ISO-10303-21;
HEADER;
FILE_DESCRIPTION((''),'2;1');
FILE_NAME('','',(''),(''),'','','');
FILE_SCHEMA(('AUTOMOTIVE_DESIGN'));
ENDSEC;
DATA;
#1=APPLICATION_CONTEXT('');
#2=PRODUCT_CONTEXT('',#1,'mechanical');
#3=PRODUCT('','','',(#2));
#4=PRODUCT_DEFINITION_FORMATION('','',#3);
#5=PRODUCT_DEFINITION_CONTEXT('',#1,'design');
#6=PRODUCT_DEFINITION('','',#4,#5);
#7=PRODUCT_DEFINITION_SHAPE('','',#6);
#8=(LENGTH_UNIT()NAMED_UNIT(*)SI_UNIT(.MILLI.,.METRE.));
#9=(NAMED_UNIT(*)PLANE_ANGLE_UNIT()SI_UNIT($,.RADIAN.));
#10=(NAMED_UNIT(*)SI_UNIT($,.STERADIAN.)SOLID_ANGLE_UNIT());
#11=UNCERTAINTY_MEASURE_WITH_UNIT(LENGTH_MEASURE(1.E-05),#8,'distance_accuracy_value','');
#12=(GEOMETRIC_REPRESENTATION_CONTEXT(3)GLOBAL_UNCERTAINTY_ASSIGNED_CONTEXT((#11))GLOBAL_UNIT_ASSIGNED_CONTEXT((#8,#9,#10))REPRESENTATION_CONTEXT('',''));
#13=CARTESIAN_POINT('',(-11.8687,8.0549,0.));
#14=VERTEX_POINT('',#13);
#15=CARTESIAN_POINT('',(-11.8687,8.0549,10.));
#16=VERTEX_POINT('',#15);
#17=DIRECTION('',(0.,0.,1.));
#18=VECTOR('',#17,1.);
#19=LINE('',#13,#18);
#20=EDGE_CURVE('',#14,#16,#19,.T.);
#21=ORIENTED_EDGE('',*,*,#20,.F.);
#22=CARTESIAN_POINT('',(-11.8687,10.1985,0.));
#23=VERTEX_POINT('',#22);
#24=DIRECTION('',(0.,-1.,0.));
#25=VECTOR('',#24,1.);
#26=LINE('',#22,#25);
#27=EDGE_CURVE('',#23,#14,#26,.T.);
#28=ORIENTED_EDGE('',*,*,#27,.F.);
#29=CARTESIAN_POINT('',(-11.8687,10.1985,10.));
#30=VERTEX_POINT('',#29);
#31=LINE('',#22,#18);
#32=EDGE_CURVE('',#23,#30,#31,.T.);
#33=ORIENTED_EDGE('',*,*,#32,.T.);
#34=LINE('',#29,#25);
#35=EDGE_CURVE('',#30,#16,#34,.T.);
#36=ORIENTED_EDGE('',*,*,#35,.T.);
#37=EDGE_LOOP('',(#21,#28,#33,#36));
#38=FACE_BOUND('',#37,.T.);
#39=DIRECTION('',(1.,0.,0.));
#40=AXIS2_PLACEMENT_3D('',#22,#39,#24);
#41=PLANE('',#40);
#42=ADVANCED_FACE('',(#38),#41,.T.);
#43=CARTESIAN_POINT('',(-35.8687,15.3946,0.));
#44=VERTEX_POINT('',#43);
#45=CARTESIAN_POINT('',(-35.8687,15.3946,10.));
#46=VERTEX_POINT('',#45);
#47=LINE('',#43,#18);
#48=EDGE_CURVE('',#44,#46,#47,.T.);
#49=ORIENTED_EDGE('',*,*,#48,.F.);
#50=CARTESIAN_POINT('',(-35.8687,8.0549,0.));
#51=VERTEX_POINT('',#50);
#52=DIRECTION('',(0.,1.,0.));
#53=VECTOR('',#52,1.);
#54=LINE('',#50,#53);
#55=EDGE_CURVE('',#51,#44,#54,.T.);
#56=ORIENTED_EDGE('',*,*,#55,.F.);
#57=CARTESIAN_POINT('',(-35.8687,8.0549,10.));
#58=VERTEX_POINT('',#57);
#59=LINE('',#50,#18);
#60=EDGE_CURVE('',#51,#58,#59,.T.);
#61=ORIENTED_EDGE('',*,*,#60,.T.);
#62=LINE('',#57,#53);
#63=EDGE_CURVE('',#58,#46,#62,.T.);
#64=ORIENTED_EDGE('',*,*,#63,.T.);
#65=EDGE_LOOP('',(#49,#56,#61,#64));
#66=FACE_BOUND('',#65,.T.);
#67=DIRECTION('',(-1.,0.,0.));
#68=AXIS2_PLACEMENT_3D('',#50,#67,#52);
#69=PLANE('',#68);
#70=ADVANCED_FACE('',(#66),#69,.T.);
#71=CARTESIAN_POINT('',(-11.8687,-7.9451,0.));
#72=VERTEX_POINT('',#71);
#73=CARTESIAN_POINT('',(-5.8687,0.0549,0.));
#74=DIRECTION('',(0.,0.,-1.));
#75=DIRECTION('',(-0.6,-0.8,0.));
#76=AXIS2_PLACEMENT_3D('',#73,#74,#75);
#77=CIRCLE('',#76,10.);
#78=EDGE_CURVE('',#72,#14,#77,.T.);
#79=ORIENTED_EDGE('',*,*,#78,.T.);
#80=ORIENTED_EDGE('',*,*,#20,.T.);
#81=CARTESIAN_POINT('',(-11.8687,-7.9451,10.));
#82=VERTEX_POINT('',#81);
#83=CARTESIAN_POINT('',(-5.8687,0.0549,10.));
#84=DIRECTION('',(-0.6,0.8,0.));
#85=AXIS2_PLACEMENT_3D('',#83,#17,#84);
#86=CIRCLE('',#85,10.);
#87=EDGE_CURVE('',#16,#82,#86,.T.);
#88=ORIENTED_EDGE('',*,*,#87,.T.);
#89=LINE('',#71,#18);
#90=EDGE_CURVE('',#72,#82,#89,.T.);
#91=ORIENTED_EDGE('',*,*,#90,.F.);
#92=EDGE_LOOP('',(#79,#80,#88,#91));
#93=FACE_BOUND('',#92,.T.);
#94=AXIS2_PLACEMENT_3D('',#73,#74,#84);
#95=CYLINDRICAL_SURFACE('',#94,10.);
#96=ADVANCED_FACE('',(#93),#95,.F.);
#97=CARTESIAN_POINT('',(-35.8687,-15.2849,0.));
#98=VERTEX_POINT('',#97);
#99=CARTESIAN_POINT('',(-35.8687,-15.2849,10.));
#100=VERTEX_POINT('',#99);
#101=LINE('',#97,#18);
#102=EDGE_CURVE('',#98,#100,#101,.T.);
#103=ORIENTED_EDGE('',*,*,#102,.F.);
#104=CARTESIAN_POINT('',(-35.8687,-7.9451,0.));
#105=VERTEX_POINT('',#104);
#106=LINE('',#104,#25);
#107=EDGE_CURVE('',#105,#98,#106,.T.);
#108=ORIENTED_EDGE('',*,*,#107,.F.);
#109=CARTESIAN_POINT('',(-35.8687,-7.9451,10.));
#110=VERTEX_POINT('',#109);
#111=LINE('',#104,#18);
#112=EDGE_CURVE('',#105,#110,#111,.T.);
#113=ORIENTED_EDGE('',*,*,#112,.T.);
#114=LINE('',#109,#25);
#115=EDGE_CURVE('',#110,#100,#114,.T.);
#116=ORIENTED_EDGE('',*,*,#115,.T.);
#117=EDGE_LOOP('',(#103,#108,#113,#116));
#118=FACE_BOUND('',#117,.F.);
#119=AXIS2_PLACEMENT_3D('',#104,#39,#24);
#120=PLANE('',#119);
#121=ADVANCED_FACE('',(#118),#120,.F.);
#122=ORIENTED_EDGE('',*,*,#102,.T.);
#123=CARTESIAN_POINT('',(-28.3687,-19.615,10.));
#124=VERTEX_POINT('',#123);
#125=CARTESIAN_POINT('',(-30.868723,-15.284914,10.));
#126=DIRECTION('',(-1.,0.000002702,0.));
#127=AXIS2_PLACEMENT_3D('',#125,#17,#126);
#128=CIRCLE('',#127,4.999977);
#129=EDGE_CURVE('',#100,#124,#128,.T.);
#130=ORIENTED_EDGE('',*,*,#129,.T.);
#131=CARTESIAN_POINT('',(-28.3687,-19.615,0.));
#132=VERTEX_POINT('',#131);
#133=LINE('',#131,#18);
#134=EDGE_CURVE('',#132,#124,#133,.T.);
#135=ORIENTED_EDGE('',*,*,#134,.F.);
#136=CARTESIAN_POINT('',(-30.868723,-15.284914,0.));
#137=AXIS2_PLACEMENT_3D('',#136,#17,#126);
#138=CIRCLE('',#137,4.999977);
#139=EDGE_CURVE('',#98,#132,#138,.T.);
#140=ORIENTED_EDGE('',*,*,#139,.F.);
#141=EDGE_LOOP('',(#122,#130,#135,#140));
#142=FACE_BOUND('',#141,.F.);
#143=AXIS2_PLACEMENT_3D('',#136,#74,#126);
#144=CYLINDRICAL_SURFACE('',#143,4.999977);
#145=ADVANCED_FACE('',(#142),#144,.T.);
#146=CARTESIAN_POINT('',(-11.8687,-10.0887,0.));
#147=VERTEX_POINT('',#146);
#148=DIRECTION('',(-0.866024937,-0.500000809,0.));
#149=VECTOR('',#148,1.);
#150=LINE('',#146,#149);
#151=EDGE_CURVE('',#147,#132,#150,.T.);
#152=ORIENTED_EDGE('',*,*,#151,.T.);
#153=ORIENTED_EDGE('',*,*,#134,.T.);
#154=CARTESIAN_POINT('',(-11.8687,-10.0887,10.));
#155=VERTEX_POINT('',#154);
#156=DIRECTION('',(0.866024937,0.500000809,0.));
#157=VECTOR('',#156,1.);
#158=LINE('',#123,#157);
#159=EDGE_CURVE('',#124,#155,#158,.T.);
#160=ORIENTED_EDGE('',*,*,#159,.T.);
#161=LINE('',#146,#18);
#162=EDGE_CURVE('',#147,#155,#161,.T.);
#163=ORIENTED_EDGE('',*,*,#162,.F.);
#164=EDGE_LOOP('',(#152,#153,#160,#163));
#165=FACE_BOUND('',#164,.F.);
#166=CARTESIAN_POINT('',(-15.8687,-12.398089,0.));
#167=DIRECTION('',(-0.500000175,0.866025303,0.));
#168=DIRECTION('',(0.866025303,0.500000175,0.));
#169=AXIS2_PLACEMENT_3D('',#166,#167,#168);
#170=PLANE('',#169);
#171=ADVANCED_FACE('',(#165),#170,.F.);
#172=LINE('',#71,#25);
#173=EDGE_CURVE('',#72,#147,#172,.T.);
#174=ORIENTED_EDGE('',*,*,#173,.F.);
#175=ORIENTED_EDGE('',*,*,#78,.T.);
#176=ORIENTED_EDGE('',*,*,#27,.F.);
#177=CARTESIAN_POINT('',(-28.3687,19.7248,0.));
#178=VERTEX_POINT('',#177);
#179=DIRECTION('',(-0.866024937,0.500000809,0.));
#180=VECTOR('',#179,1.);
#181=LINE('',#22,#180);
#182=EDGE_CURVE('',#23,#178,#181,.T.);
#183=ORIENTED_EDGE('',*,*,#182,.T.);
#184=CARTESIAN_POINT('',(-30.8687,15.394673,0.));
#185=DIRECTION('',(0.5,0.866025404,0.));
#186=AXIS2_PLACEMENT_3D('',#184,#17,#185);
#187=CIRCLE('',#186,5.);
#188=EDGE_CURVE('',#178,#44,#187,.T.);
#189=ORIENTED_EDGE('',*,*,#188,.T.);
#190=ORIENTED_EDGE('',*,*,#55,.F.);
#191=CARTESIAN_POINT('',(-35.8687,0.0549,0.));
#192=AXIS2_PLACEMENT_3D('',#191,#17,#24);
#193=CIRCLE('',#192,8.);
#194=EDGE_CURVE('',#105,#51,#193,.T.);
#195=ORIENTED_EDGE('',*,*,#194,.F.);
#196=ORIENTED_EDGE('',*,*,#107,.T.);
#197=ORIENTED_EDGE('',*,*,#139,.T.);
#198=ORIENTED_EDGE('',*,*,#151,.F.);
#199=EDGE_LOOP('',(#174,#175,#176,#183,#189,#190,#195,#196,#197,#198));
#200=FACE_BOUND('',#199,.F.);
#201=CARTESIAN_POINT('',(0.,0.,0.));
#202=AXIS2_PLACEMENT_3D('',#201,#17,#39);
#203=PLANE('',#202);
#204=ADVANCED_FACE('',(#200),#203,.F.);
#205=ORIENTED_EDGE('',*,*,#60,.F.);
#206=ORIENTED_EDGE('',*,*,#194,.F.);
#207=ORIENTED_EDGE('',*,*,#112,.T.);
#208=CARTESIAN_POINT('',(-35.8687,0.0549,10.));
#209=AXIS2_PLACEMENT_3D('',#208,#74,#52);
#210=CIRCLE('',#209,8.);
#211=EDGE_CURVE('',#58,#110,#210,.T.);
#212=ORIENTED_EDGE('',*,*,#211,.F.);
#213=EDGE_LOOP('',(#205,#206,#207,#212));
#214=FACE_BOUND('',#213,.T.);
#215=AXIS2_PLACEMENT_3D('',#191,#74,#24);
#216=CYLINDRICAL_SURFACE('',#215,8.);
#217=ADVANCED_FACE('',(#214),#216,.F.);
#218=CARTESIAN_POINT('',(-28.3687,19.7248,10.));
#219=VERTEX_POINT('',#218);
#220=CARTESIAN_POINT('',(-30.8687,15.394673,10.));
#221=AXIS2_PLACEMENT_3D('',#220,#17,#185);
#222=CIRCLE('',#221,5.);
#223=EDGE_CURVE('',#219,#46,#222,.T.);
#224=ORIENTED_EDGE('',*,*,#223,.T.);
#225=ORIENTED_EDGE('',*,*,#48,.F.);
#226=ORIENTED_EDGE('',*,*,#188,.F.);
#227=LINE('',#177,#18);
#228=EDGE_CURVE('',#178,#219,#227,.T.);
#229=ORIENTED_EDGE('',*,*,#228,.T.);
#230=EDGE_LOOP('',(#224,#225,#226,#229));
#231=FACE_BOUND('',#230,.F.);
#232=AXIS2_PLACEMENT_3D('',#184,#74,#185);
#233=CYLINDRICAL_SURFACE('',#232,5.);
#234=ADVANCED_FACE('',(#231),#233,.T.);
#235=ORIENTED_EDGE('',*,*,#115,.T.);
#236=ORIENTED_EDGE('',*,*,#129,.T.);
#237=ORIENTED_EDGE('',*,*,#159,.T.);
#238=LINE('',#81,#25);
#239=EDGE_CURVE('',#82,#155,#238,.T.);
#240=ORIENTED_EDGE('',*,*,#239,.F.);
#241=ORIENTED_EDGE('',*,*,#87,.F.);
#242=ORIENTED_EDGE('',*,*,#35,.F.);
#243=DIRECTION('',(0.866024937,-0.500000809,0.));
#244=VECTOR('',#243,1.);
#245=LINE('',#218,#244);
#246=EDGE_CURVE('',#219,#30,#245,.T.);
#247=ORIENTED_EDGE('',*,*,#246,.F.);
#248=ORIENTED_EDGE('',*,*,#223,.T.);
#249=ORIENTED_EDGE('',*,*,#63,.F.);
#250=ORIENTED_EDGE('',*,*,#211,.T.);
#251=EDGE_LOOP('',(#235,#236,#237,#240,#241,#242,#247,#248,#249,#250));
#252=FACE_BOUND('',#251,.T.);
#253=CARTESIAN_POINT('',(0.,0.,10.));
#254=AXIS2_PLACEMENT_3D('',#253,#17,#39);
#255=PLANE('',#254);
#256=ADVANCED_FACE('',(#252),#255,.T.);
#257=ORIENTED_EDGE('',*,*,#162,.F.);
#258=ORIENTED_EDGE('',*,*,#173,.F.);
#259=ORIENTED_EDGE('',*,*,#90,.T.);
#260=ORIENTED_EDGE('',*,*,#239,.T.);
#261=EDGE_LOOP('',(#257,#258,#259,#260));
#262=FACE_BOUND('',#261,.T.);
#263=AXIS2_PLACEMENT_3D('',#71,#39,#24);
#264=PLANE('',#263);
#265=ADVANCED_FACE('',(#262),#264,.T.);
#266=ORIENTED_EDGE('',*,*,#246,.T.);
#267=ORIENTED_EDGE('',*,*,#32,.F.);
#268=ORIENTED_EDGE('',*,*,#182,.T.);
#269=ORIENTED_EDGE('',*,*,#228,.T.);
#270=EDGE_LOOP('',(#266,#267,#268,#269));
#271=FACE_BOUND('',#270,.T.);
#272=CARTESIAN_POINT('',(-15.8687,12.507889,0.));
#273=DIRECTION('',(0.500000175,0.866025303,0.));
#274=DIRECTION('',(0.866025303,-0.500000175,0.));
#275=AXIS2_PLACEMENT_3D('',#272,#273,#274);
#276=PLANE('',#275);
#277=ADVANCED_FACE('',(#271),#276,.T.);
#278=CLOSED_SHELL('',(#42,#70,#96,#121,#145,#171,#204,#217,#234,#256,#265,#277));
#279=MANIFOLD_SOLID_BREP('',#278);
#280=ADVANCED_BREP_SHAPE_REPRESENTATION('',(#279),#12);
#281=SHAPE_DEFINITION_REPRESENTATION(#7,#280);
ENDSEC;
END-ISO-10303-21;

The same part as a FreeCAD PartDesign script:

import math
import FreeCAD as App
import Part
import Sketcher
Q = App.Units.Quantity

doc = App.newDocument("Part")
body = doc.addObject("PartDesign::Body", "Body")

# Sketch on XY plane
sketch1 = body.newObject("Sketcher::SketchObject", "Sketch")
sketch1.AttachmentSupport = (doc.getObject("XY_Plane"), [""])
sketch1.MapMode = "FlatFace"
sketch1.addGeometry([
    Part.LineSegment(App.Vector(-11.9, 8.1, 0), App.Vector(-11.9, 10.2, 0)),  # 0
    Part.LineSegment(App.Vector(-11.9, 10.2, 0), App.Vector(-28.4, 19.7, 0)),  # 1
    Part.ArcOfCircle(Part.Circle(App.Vector(-30.9, 15.4, 0), App.Vector(0, 0, 1), 5), math.radians(60), math.radians(180)),  # 2
    Part.LineSegment(App.Vector(-35.9, 15.4, 0), App.Vector(-35.9, 8.1, 0)),  # 3
    Part.ArcOfCircle(Part.Circle(App.Vector(-35.9, 0.1, 0), App.Vector(0, 0, 1), 8), math.radians(-90), math.radians(90)),  # 4
    Part.LineSegment(App.Vector(-35.9, -7.9, 0), App.Vector(-35.9, -15.3, 0)),  # 5
    Part.ArcOfCircle(Part.Circle(App.Vector(-30.9, -15.3, 0), App.Vector(0, 0, 1), 5), math.radians(180), math.radians(300)),  # 6
    Part.LineSegment(App.Vector(-28.4, -19.6, 0), App.Vector(-11.9, -10.1, 0)),  # 7
    Part.LineSegment(App.Vector(-11.9, -10.1, 0), App.Vector(-11.9, -7.9, 0)),  # 8
    Part.ArcOfCircle(Part.Circle(App.Vector(-5.9, 0.1, 0), App.Vector(0, 0, 1), 10), math.radians(127), math.radians(233)),  # 9
], False)
sketch1.addConstraint([
    Sketcher.Constraint("Coincident", 0, 2, 1, 1),
    Sketcher.Constraint("Tangent", 1, 2, 2, 1),
    Sketcher.Constraint("Tangent", 2, 2, 3, 1),
    Sketcher.Constraint("Coincident", 3, 2, 4, 2),
    Sketcher.Constraint("Coincident", 4, 1, 5, 1),
    Sketcher.Constraint("Tangent", 5, 2, 6, 1),
    Sketcher.Constraint("Tangent", 6, 2, 7, 1),
    Sketcher.Constraint("Coincident", 7, 2, 8, 1),
    Sketcher.Constraint("Coincident", 8, 2, 9, 2),
    Sketcher.Constraint("Coincident", 9, 1, 0, 1),
    Sketcher.Constraint("Vertical", 0),
    Sketcher.Constraint("Vertical", 3),
    Sketcher.Constraint("Vertical", 5),
    Sketcher.Constraint("Vertical", 8),
    Sketcher.Constraint("Equal", 2, 6),
    Sketcher.Constraint("Horizontal", 4, 3, 9, 3),
    Sketcher.Constraint("Horizontal", 4, 1, 8, 2),
    Sketcher.Constraint("Horizontal", 3, 2, 9, 1),
    Sketcher.Constraint("Vertical", 2, 3, 6, 3),
    Sketcher.Constraint("Vertical", 4, 3, 2, 2),
    Sketcher.Constraint("Vertical", 1, 2, 6, 2),
    Sketcher.Constraint("Equal", 3, 5),
    Sketcher.Constraint("Radius", 2, 5.0),
    Sketcher.Constraint("Radius", 4, 8.0),
    Sketcher.Constraint("Radius", 9, 10.0),
    Sketcher.Constraint("DistanceX", 4, 3, 0, 2, 24.0),
    Sketcher.Constraint("Angle", 1, Q("150 deg")),
    Sketcher.Constraint("DistanceY", 4, 3, 1, 2, 19.67),
    Sketcher.Constraint("DistanceY", -1, 1, 4, 3, 0.055),
    Sketcher.Constraint("DistanceX", 2, 3, -1, 1, 30.8687),
])
pad1 = body.newObject("PartDesign::Pad", "Pad")
pad1.Profile = sketch1
pad1.Length = 10

doc.recompute()
